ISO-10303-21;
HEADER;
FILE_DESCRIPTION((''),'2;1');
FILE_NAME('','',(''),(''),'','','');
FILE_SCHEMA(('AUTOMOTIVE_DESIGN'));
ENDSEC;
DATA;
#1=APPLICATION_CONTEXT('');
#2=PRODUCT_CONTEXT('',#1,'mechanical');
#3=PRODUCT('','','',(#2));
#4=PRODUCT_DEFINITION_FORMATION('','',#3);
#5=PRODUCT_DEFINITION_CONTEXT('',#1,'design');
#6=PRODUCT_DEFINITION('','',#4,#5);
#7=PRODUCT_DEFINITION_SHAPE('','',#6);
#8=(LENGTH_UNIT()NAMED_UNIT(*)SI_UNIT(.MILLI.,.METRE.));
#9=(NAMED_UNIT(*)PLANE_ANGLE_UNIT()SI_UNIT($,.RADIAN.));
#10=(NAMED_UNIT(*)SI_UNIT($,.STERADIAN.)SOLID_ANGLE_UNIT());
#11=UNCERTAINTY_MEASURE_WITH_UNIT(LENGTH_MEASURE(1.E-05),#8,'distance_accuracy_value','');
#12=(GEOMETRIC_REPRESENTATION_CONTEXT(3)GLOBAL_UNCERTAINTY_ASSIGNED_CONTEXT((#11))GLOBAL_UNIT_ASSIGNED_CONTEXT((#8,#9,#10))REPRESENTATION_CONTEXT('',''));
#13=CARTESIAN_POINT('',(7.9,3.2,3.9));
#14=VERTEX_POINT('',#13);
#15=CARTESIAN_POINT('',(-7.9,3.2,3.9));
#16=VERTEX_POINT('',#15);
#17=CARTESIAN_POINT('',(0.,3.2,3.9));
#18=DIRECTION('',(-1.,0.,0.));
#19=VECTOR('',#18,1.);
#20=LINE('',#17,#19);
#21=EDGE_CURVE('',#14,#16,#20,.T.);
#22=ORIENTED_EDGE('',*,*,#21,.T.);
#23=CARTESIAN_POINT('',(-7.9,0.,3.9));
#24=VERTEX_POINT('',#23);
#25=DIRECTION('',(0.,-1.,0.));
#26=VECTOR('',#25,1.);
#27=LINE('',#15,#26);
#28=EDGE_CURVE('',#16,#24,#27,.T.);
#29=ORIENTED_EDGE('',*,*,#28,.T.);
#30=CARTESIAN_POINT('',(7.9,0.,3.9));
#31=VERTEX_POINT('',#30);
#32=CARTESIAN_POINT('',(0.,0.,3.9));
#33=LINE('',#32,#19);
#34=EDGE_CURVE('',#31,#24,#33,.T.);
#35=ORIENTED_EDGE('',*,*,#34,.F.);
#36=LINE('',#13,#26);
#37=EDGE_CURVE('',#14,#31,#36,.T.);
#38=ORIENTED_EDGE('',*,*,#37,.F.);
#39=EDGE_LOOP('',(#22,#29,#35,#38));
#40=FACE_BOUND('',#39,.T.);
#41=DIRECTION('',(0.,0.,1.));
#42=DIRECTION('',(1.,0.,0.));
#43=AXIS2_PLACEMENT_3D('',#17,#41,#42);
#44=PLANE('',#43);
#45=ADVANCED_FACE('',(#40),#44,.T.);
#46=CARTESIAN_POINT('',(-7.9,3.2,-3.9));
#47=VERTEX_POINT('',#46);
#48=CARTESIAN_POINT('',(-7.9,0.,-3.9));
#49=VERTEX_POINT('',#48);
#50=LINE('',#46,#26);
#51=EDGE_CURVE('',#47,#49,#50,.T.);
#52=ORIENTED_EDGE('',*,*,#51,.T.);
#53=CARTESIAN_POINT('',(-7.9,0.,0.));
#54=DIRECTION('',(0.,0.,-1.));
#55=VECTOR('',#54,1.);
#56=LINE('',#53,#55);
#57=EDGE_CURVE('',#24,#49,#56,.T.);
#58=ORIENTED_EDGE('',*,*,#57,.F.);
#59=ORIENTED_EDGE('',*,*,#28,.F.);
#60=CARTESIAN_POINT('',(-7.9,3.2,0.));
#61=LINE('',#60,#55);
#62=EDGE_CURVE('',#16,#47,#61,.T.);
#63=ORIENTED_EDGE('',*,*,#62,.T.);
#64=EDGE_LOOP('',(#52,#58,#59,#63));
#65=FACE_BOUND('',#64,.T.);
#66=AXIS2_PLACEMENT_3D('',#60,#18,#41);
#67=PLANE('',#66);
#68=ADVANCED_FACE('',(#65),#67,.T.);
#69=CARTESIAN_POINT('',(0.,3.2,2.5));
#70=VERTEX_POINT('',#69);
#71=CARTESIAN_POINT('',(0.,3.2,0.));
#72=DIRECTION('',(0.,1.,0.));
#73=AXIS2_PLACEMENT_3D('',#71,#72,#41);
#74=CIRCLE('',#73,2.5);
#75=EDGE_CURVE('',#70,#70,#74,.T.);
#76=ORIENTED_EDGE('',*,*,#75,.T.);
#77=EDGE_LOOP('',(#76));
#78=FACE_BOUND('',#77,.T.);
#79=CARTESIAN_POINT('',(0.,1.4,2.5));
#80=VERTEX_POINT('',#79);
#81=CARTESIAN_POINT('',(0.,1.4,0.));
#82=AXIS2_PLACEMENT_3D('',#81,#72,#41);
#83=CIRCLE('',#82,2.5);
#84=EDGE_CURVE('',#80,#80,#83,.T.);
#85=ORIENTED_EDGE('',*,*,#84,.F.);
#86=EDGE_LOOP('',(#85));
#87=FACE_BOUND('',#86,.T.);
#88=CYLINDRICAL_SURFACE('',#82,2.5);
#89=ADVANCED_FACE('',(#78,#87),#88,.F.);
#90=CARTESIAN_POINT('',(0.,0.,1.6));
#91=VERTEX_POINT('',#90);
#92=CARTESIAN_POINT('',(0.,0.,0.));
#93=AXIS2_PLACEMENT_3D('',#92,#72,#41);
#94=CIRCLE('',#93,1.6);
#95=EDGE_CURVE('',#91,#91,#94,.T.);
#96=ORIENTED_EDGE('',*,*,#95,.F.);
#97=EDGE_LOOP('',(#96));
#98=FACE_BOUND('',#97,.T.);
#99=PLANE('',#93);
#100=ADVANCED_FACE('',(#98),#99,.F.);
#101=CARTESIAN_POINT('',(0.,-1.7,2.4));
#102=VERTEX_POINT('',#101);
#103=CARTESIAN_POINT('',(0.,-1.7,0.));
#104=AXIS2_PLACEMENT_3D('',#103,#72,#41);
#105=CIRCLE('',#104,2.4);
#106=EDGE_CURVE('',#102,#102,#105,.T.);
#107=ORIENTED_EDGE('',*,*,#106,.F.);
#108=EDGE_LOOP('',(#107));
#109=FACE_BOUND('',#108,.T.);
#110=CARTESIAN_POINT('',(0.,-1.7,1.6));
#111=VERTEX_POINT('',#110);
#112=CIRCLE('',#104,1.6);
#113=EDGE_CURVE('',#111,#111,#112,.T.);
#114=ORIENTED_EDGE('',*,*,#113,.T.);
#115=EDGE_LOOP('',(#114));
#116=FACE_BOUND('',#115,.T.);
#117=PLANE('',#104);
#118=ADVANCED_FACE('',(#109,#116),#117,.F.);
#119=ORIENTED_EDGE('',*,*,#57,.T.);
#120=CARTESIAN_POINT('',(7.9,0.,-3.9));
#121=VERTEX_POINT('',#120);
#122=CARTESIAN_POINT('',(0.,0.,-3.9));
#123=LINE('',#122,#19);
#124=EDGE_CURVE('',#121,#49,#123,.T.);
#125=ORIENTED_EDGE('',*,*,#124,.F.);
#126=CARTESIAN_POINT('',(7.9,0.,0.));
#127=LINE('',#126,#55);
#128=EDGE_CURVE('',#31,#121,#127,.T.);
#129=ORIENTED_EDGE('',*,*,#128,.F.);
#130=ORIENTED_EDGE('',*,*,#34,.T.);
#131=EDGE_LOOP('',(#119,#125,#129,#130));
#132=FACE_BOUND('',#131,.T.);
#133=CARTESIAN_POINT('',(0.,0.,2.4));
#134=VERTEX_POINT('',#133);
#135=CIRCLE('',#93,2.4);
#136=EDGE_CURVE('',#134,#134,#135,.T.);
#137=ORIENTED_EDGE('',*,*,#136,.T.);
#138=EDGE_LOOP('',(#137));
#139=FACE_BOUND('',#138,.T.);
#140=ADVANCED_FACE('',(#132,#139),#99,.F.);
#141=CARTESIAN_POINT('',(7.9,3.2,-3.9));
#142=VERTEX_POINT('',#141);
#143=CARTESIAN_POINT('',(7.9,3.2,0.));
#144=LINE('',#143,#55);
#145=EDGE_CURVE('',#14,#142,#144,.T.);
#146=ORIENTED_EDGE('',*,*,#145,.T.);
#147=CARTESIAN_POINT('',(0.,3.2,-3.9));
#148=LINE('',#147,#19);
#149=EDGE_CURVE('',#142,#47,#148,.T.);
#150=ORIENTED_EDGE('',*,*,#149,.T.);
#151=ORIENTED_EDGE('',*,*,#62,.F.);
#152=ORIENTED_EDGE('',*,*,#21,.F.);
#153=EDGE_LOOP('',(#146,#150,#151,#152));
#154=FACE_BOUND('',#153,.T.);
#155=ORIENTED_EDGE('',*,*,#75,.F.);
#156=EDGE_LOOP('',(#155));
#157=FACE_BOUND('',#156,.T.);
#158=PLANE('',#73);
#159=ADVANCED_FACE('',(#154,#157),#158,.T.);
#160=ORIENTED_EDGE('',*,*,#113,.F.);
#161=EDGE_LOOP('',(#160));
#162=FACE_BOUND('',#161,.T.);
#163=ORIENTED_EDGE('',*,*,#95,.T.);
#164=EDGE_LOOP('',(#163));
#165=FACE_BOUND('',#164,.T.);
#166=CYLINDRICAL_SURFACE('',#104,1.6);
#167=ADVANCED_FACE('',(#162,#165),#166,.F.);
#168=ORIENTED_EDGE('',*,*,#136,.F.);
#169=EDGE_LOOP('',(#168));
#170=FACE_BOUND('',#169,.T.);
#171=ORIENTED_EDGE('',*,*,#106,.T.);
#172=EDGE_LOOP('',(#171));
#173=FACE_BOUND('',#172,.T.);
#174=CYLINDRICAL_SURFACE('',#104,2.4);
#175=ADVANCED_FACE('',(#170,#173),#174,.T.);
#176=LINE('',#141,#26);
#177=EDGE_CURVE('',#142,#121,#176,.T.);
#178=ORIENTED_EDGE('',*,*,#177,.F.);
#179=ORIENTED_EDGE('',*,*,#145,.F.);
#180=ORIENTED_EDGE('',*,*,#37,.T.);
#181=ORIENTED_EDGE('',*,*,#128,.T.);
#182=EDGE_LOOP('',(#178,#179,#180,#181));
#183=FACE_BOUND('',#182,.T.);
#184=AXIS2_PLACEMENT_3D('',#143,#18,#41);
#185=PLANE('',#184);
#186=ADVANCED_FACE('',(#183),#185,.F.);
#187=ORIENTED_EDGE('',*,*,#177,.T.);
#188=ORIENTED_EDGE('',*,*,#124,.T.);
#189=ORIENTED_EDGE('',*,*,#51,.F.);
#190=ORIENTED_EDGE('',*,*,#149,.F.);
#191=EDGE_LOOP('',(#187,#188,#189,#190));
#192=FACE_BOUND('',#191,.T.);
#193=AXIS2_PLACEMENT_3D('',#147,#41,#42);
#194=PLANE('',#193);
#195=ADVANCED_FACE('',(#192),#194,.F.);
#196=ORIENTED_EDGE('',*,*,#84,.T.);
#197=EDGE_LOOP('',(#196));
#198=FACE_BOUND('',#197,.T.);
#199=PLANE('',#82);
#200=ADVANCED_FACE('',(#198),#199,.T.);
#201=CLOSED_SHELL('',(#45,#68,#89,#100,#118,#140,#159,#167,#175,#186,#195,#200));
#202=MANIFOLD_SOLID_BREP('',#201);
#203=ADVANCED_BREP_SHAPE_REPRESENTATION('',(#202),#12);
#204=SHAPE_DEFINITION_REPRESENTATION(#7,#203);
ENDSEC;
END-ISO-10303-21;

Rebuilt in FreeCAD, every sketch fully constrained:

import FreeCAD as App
import Part
import Sketcher
Q = App.Units.Quantity


def add_polygon(sketch, points):
    """Adds a closed chain of lines whose ends are joined by coincident constraints."""
    first, n = sketch.GeometryCount, len(points)
    for a, b in zip(points, points[1:] + points[:1]):
        sketch.addGeometry(Part.LineSegment(App.Vector(*a, 0), App.Vector(*b, 0)), False)
    for i in range(n):
        sketch.addConstraint(Sketcher.Constraint("Coincident", first + i, 2, first + (i + 1) % n, 1))

doc = App.newDocument("Part")
body = doc.addObject("PartDesign::Body", "Body")

sketch1 = body.newObject("Sketcher::SketchObject", "Sketch")
sketch1.AttachmentSupport = (doc.getObject("XZ_Plane"), [""])
sketch1.MapMode = "FlatFace"
add_polygon(sketch1, [(-8, -4), (-8, 4), (8, 4), (8, -4)])
sketch1.addConstraint(Sketcher.Constraint("Vertical", 0))
sketch1.addConstraint(Sketcher.Constraint("Horizontal", 1))
sketch1.addConstraint(Sketcher.Constraint("Vertical", 2))
sketch1.addConstraint(Sketcher.Constraint("Horizontal", 3))
sketch1.addConstraint(Sketcher.Constraint("Symmetric", 0, 2, 2, 2, -1, 1))
sketch1.addConstraint(Sketcher.Constraint("DistanceX", 1, 1, 1, 2, Q("15.8 mm")))
sketch1.addConstraint(Sketcher.Constraint("DistanceY", 0, 1, 0, 2, Q("7.8 mm")))
pad1 = body.newObject("PartDesign::Pad", "Pad")
pad1.Profile = sketch1
pad1.Length = 3.2
pad1.Reversed = True

sketch2 = body.newObject("Sketcher::SketchObject", "Sketch001")
sketch2.AttachmentSupport = (doc.getObject("XZ_Plane"), [""])
sketch2.MapMode = "FlatFace"
sketch2.addGeometry(Part.Circle(App.Vector(0, 0, 0), App.Vector(0, 0, 1), 2.4), False)
sketch2.addGeometry(Part.Circle(App.Vector(0, 0, 0), App.Vector(0, 0, 1), 1.6), False)
sketch2.addConstraint(Sketcher.Constraint("Coincident", 0, 3, -1, 1))
sketch2.addConstraint(Sketcher.Constraint("Coincident", 1, 3, -1, 1))
sketch2.addConstraint(Sketcher.Constraint("Diameter", 0, Q("4.8 mm")))
sketch2.addConstraint(Sketcher.Constraint("Diameter", 1, Q("3.2 mm")))
pad2 = body.newObject("PartDesign::Pad", "Pad001")
pad2.Profile = sketch2
pad2.Length = 1.7

sketch3 = body.newObject("Sketcher::SketchObject", "Sketch002")
sketch3.AttachmentSupport = (doc.getObject("XZ_Plane"), [""])
sketch3.MapMode = "FlatFace"
sketch3.AttachmentOffset = App.Placement(App.Vector(0, 0, -3.2), App.Rotation())
sketch3.addGeometry(Part.Circle(App.Vector(0, 0, 0), App.Vector(0, 0, 1), 2.5), False)
sketch3.addConstraint(Sketcher.Constraint("Coincident", 0, 3, -1, 1))
sketch3.addConstraint(Sketcher.Constraint("Diameter", 0, Q("5 mm")))
pocket1 = body.newObject("PartDesign::Pocket", "Pocket")
pocket1.Profile = sketch3
pocket1.Length = 1.8
pocket1.Reversed = True

doc.recompute()
